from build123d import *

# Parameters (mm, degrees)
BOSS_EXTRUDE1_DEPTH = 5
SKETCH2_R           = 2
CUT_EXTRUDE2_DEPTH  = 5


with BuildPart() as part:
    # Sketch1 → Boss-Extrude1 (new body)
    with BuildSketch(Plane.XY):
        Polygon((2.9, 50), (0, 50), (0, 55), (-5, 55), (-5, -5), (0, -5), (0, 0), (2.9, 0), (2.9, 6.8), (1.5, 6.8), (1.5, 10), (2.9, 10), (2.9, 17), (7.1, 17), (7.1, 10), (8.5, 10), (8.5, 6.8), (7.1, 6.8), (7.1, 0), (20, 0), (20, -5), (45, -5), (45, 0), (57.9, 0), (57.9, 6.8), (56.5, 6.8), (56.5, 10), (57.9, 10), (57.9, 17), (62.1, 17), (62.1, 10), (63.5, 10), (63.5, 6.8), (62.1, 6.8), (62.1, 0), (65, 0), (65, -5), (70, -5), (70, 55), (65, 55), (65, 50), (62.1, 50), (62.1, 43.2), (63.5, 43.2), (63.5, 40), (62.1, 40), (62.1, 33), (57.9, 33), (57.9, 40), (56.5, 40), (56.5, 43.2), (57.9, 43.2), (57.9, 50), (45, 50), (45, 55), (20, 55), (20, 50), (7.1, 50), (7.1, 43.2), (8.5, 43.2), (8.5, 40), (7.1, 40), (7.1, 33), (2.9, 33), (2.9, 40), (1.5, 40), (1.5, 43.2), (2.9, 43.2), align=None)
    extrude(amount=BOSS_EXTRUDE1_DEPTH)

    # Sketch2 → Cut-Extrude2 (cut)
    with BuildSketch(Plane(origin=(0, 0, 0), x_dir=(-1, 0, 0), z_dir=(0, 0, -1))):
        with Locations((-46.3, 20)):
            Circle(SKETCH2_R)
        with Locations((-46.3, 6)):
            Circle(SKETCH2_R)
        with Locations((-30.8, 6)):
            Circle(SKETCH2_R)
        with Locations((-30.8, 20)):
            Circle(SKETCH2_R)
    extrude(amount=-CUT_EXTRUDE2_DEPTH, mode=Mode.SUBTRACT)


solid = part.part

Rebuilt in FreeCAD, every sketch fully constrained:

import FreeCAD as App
import Part
import Sketcher
Q = App.Units.Quantity


def add_polygon(sketch, points):
    """Adds a closed chain of lines whose ends are joined by coincident constraints."""
    first, n = sketch.GeometryCount, len(points)
    for a, b in zip(points, points[1:] + points[:1]):
        sketch.addGeometry(Part.LineSegment(App.Vector(*a, 0), App.Vector(*b, 0)), False)
    for i in range(n):
        sketch.addConstraint(Sketcher.Constraint("Coincident", first + i, 2, first + (i + 1) % n, 1))

doc = App.newDocument("Part")
body = doc.addObject("PartDesign::Body", "Body")

sketch1 = body.newObject("Sketcher::SketchObject", "Sketch")
sketch1.AttachmentSupport = (doc.getObject("XY_Plane"), [""])
sketch1.MapMode = "FlatFace"
add_polygon(sketch1, [(2.9, 50), (0, 50), (0, 55), (-5, 55), (-5, -5), (0, -5), (0, 0), (2.9, 0), (2.9, 6.8), (1.5, 6.8), (1.5, 10), (2.9, 10), (2.9, 17), (7.1, 17), (7.1, 10), (8.5, 10), (8.5, 6.8), (7.1, 6.8), (7.1, 0), (20, 0), (20, -5), (45, -5), (45, 0), (57.9, 0), (57.9, 6.8), (56.5, 6.8), (56.5, 10), (57.9, 10), (57.9, 17), (62.1, 17), (62.1, 10), (63.5, 10), (63.5, 6.8), (62.1, 6.8), (62.1, 0), (65, 0), (65, -5), (70, -5), (70, 55), (65, 55), (65, 50), (62.1, 50), (62.1, 43.2), (63.5, 43.2), (63.5, 40), (62.1, 40), (62.1, 33), (57.9, 33), (57.9, 40), (56.5, 40), (56.5, 43.2), (57.9, 43.2), (57.9, 50), (45, 50), (45, 55), (20, 55), (20, 50), (7.1, 50), (7.1, 43.2), (8.5, 43.2), (8.5, 40), (7.1, 40), (7.1, 33), (2.9, 33), (2.9, 40), (1.5, 40), (1.5, 43.2), (2.9, 43.2)])
sketch1.addConstraint(Sketcher.Constraint("Horizontal", 0))
sketch1.addConstraint(Sketcher.Constraint("Vertical", 1))
sketch1.addConstraint(Sketcher.Constraint("Horizontal", 2))
sketch1.addConstraint(Sketcher.Constraint("Vertical", 3))
sketch1.addConstraint(Sketcher.Constraint("Horizontal", 4))
sketch1.addConstraint(Sketcher.Constraint("Vertical", 5))
sketch1.addConstraint(Sketcher.Constraint("Horizontal", 6))
sketch1.addConstraint(Sketcher.Constraint("Vertical", 7))
sketch1.addConstraint(Sketcher.Constraint("Horizontal", 8))
sketch1.addConstraint(Sketcher.Constraint("Vertical", 9))
sketch1.addConstraint(Sketcher.Constraint("Horizontal", 10))
sketch1.addConstraint(Sketcher.Constraint("Vertical", 11))
sketch1.addConstraint(Sketcher.Constraint("Horizontal", 12))
sketch1.addConstraint(Sketcher.Constraint("Vertical", 13))
sketch1.addConstraint(Sketcher.Constraint("Horizontal", 14))
sketch1.addConstraint(Sketcher.Constraint("Vertical", 15))
sketch1.addConstraint(Sketcher.Constraint("Horizontal", 16))
sketch1.addConstraint(Sketcher.Constraint("Vertical", 17))
sketch1.addConstraint(Sketcher.Constraint("Horizontal", 18))
sketch1.addConstraint(Sketcher.Constraint("Vertical", 19))
sketch1.addConstraint(Sketcher.Constraint("Horizontal", 20))
sketch1.addConstraint(Sketcher.Constraint("Vertical", 21))
sketch1.addConstraint(Sketcher.Constraint("Horizontal", 22))
sketch1.addConstraint(Sketcher.Constraint("Vertical", 23))
sketch1.addConstraint(Sketcher.Constraint("Horizontal", 24))
sketch1.addConstraint(Sketcher.Constraint("Vertical", 25))
sketch1.addConstraint(Sketcher.Constraint("Horizontal", 26))
sketch1.addConstraint(Sketcher.Constraint("Vertical", 27))
sketch1.addConstraint(Sketcher.Constraint("Horizontal", 28))
sketch1.addConstraint(Sketcher.Constraint("Vertical", 29))
sketch1.addConstraint(Sketcher.Constraint("Horizontal", 30))
sketch1.addConstraint(Sketcher.Constraint("Vertical", 31))
sketch1.addConstraint(Sketcher.Constraint("Horizontal", 32))
sketch1.addConstraint(Sketcher.Constraint("Vertical", 33))
sketch1.addConstraint(Sketcher.Constraint("Horizontal", 34))
sketch1.addConstraint(Sketcher.Constraint("Vertical", 35))
sketch1.addConstraint(Sketcher.Constraint("Horizontal", 36))
sketch1.addConstraint(Sketcher.Constraint("Vertical", 37))
sketch1.addConstraint(Sketcher.Constraint("Horizontal", 38))
sketch1.addConstraint(Sketcher.Constraint("Vertical", 39))
sketch1.addConstraint(Sketcher.Constraint("Horizontal", 40))
sketch1.addConstraint(Sketcher.Constraint("Vertical", 41))
sketch1.addConstraint(Sketcher.Constraint("Horizontal", 42))
sketch1.addConstraint(Sketcher.Constraint("Vertical", 43))
sketch1.addConstraint(Sketcher.Constraint("Horizontal", 44))
sketch1.addConstraint(Sketcher.Constraint("Vertical", 45))
sketch1.addConstraint(Sketcher.Constraint("Horizontal", 46))
sketch1.addConstraint(Sketcher.Constraint("Vertical", 47))
sketch1.addConstraint(Sketcher.Constraint("Horizontal", 48))
sketch1.addConstraint(Sketcher.Constraint("Vertical", 49))
sketch1.addConstraint(Sketcher.Constraint("Horizontal", 50))
sketch1.addConstraint(Sketcher.Constraint("Vertical", 51))
sketch1.addConstraint(Sketcher.Constraint("Horizontal", 52))
sketch1.addConstraint(Sketcher.Constraint("Vertical", 53))
sketch1.addConstraint(Sketcher.Constraint("Horizontal", 54))
sketch1.addConstraint(Sketcher.Constraint("Vertical", 55))
sketch1.addConstraint(Sketcher.Constraint("Horizontal", 56))
sketch1.addConstraint(Sketcher.Constraint("Vertical", 57))
sketch1.addConstraint(Sketcher.Constraint("Horizontal", 58))
sketch1.addConstraint(Sketcher.Constraint("Vertical", 59))
sketch1.addConstraint(Sketcher.Constraint("Horizontal", 60))
sketch1.addConstraint(Sketcher.Constraint("Vertical", 61))
sketch1.addConstraint(Sketcher.Constraint("Horizontal", 62))
sketch1.addConstraint(Sketcher.Constraint("Vertical", 63))
sketch1.addConstraint(Sketcher.Constraint("Horizontal", 64))
sketch1.addConstraint(Sketcher.Constraint("Vertical", 65))
sketch1.addConstraint(Sketcher.Constraint("Horizontal", 66))
sketch1.addConstraint(Sketcher.Constraint("Vertical", 67))
sketch1.addConstraint(Sketcher.Constraint("Coincident", 5, 2, -1, 1))
sketch1.addConstraint(Sketcher.Constraint("PointOnObject", 0, 2, -2))
sketch1.addConstraint(Sketcher.Constraint("PointOnObject", 17, 2, -1))
sketch1.addConstraint(Sketcher.Constraint("PointOnObject", 21, 2, -1))
sketch1.addConstraint(Sketcher.Constraint("PointOnObject", 33, 2, -1))
sketch1.addConstraint(Sketcher.Constraint("Horizontal", 10, 2, 13, 2))
sketch1.addConstraint(Sketcher.Constraint("Horizontal", 8, 2, 15, 2))
sketch1.addConstraint(Sketcher.Constraint("Horizontal", 4, 2, 19, 2))
sketch1.addConstraint(Sketcher.Constraint("Horizontal", 16, 2, 23, 2))
sketch1.addConstraint(Sketcher.Constraint("Horizontal", 14, 2, 25, 2))
sketch1.addConstraint(Sketcher.Constraint("Horizontal", 12, 2, 27, 2))
sketch1.addConstraint(Sketcher.Constraint("Horizontal", 26, 2, 29, 2))
sketch1.addConstraint(Sketcher.Constraint("Horizontal", 24, 2, 31, 2))
sketch1.addConstraint(Sketcher.Constraint("Horizontal", 20, 2, 35, 2))
sketch1.addConstraint(Sketcher.Constraint("Horizontal", 2, 2, 37, 2))
sketch1.addConstraint(Sketcher.Constraint("Horizontal", 0, 2, 39, 2))
sketch1.addConstraint(Sketcher.Constraint("Horizontal", 44, 2, 47, 2))
sketch1.addConstraint(Sketcher.Constraint("Horizontal", 42, 2, 49, 2))
sketch1.addConstraint(Sketcher.Constraint("Horizontal", 40, 2, 51, 2))
sketch1.addConstraint(Sketcher.Constraint("Horizontal", 38, 2, 53, 2))
sketch1.addConstraint(Sketcher.Constraint("Horizontal", 52, 2, 55, 2))
sketch1.addConstraint(Sketcher.Constraint("Horizontal", 50, 2, 57, 2))
sketch1.addConstraint(Sketcher.Constraint("Horizontal", 48, 2, 59, 2))
sketch1.addConstraint(Sketcher.Constraint("Horizontal", 46, 2, 61, 2))
sketch1.addConstraint(Sketcher.Constraint("Horizontal", 60, 2, 63, 2))
sketch1.addConstraint(Sketcher.Constraint("Horizontal", 58, 2, 65, 2))
sketch1.addConstraint(Sketcher.Constraint("Vertical", 7, 2, 10, 2))
sketch1.addConstraint(Sketcher.Constraint("Vertical", 13, 2, 16, 2))
sketch1.addConstraint(Sketcher.Constraint("Vertical", 23, 2, 26, 2))
sketch1.addConstraint(Sketcher.Constraint("Vertical", 29, 2, 32, 2))
sketch1.addConstraint(Sketcher.Constraint("Vertical", 35, 2, 38, 2))
sketch1.addConstraint(Sketcher.Constraint("Vertical", 33, 2, 40, 2))
sketch1.addConstraint(Sketcher.Constraint("Vertical", 31, 2, 42, 2))
sketch1.addConstraint(Sketcher.Constraint("Vertical", 41, 2, 44, 2))
sketch1.addConstraint(Sketcher.Constraint("Vertical", 27, 2, 46, 2))
sketch1.addConstraint(Sketcher.Constraint("Vertical", 25, 2, 48, 2))
sketch1.addConstraint(Sketcher.Constraint("Vertical", 47, 2, 50, 2))
sketch1.addConstraint(Sketcher.Constraint("Vertical", 21, 2, 52, 2))
sketch1.addConstraint(Sketcher.Constraint("Vertical", 19, 2, 54, 2))
sketch1.addConstraint(Sketcher.Constraint("Vertical", 17, 2, 56, 2))
sketch1.addConstraint(Sketcher.Constraint("Vertical", 15, 2, 58, 2))
sketch1.addConstraint(Sketcher.Constraint("Vertical", 57, 2, 60, 2))
sketch1.addConstraint(Sketcher.Constraint("Vertical", 11, 2, 62, 2))
sketch1.addConstraint(Sketcher.Constraint("Vertical", 9, 2, 64, 2))
sketch1.addConstraint(Sketcher.Constraint("Vertical", 63, 2, 66, 2))
sketch1.addConstraint(Sketcher.Constraint("Equal", 10, 14))
sketch1.addConstraint(Sketcher.Constraint("Equal", 18, 22))
sketch1.addConstraint(Sketcher.Constraint("Equal", 16, 24))
sketch1.addConstraint(Sketcher.Constraint("Equal", 12, 28))
sketch1.addConstraint(Sketcher.Constraint("Equal", 26, 30))
sketch1.addConstraint(Sketcher.Constraint("Equal", 6, 34))
sketch1.addConstraint(Sketcher.Constraint("Equal", 4, 36))
sketch1.addConstraint(Sketcher.Constraint("Equal", 38, 1))
sketch1.addConstraint(Sketcher.Constraint("Equal", 1, 5))
sketch1.addConstraint(Sketcher.Constraint("Equal", 33, 41))
sketch1.addConstraint(Sketcher.Constraint("Equal", 31, 43))
sketch1.addConstraint(Sketcher.Constraint("Equal", 29, 45))
sketch1.addConstraint(Sketcher.Constraint("DistanceX", 2, 2, 2, 1, Q("5 mm")))
sketch1.addConstraint(Sketcher.Constraint("DistanceX", 20, 1, 20, 2, Q("25 mm")))
sketch1.addConstraint(Sketcher.Constraint("DistanceY", 3, 2, 3, 1, Q("60 mm")))
sketch1.addConstraint(Sketcher.Constraint("DistanceY", 11, 1, 11, 2, Q("7 mm")))
sketch1.addConstraint(Sketcher.Constraint("DistanceX", 0, 2, 0, 1, Q("2.9 mm")))
sketch1.addConstraint(Sketcher.Constraint("DistanceX", 8, 2, 8, 1, Q("1.4 mm")))
sketch1.addConstraint(Sketcher.Constraint("DistanceX", 12, 1, 12, 2, Q("4.2 mm")))
sketch1.addConstraint(Sketcher.Constraint("DistanceX", 18, 1, 18, 2, Q("12.9 mm")))
sketch1.addConstraint(Sketcher.Constraint("DistanceY", 7, 1, 7, 2, Q("6.8 mm")))
sketch1.addConstraint(Sketcher.Constraint("DistanceY", 9, 1, 9, 2, Q("3.2 mm")))
pad1 = body.newObject("PartDesign::Pad", "Pad")
pad1.Profile = sketch1
pad1.Length = 5

sketch2 = body.newObject("Sketcher::SketchObject", "Sketch001")
sketch2.AttachmentSupport = (doc.getObject("XY_Plane"), [""])
sketch2.MapMode = "FlatFace"
sketch2.addGeometry(Part.Circle(App.Vector(46.3, 20, 0), App.Vector(0, 0, 1), 2), False)
sketch2.addGeometry(Part.Circle(App.Vector(46.3, 6, 0), App.Vector(0, 0, 1), 2), False)
sketch2.addGeometry(Part.Circle(App.Vector(30.8, 6, 0), App.Vector(0, 0, 1), 2), False)
sketch2.addGeometry(Part.Circle(App.Vector(30.8, 20, 0), App.Vector(0, 0, 1), 2), False)
sketch2.addConstraint(Sketcher.Constraint("Equal", 0, 1))
sketch2.addConstraint(Sketcher.Constraint("Equal", 1, 2))
sketch2.addConstraint(Sketcher.Constraint("Equal", 2, 3))
sketch2.addConstraint(Sketcher.Constraint("Horizontal", 1, 3, 2, 3))
sketch2.addConstraint(Sketcher.Constraint("Horizontal", 0, 3, 3, 3))
sketch2.addConstraint(Sketcher.Constraint("Vertical", 0, 3, 1, 3))
sketch2.addConstraint(Sketcher.Constraint("Vertical", 2, 3, 3, 3))
sketch2.addConstraint(Sketcher.Constraint("Diameter", 0, Q("4 mm")))
sketch2.addConstraint(Sketcher.Constraint("DistanceY", -1, 1, 0, 3, Q("20 mm")))
sketch2.addConstraint(Sketcher.Constraint("DistanceY", -1, 1, 1, 3, Q("6 mm")))
sketch2.addConstraint(Sketcher.Constraint("DistanceX", -1, 1, 0, 3, Q("46.3 mm")))
sketch2.addConstraint(Sketcher.Constraint("DistanceX", -1, 1, 2, 3, Q("30.8 mm")))
pocket1 = body.newObject("PartDesign::Pocket", "Pocket")
pocket1.Profile = sketch2
pocket1.Length = 5
pocket1.Reversed = True

doc.recompute()
